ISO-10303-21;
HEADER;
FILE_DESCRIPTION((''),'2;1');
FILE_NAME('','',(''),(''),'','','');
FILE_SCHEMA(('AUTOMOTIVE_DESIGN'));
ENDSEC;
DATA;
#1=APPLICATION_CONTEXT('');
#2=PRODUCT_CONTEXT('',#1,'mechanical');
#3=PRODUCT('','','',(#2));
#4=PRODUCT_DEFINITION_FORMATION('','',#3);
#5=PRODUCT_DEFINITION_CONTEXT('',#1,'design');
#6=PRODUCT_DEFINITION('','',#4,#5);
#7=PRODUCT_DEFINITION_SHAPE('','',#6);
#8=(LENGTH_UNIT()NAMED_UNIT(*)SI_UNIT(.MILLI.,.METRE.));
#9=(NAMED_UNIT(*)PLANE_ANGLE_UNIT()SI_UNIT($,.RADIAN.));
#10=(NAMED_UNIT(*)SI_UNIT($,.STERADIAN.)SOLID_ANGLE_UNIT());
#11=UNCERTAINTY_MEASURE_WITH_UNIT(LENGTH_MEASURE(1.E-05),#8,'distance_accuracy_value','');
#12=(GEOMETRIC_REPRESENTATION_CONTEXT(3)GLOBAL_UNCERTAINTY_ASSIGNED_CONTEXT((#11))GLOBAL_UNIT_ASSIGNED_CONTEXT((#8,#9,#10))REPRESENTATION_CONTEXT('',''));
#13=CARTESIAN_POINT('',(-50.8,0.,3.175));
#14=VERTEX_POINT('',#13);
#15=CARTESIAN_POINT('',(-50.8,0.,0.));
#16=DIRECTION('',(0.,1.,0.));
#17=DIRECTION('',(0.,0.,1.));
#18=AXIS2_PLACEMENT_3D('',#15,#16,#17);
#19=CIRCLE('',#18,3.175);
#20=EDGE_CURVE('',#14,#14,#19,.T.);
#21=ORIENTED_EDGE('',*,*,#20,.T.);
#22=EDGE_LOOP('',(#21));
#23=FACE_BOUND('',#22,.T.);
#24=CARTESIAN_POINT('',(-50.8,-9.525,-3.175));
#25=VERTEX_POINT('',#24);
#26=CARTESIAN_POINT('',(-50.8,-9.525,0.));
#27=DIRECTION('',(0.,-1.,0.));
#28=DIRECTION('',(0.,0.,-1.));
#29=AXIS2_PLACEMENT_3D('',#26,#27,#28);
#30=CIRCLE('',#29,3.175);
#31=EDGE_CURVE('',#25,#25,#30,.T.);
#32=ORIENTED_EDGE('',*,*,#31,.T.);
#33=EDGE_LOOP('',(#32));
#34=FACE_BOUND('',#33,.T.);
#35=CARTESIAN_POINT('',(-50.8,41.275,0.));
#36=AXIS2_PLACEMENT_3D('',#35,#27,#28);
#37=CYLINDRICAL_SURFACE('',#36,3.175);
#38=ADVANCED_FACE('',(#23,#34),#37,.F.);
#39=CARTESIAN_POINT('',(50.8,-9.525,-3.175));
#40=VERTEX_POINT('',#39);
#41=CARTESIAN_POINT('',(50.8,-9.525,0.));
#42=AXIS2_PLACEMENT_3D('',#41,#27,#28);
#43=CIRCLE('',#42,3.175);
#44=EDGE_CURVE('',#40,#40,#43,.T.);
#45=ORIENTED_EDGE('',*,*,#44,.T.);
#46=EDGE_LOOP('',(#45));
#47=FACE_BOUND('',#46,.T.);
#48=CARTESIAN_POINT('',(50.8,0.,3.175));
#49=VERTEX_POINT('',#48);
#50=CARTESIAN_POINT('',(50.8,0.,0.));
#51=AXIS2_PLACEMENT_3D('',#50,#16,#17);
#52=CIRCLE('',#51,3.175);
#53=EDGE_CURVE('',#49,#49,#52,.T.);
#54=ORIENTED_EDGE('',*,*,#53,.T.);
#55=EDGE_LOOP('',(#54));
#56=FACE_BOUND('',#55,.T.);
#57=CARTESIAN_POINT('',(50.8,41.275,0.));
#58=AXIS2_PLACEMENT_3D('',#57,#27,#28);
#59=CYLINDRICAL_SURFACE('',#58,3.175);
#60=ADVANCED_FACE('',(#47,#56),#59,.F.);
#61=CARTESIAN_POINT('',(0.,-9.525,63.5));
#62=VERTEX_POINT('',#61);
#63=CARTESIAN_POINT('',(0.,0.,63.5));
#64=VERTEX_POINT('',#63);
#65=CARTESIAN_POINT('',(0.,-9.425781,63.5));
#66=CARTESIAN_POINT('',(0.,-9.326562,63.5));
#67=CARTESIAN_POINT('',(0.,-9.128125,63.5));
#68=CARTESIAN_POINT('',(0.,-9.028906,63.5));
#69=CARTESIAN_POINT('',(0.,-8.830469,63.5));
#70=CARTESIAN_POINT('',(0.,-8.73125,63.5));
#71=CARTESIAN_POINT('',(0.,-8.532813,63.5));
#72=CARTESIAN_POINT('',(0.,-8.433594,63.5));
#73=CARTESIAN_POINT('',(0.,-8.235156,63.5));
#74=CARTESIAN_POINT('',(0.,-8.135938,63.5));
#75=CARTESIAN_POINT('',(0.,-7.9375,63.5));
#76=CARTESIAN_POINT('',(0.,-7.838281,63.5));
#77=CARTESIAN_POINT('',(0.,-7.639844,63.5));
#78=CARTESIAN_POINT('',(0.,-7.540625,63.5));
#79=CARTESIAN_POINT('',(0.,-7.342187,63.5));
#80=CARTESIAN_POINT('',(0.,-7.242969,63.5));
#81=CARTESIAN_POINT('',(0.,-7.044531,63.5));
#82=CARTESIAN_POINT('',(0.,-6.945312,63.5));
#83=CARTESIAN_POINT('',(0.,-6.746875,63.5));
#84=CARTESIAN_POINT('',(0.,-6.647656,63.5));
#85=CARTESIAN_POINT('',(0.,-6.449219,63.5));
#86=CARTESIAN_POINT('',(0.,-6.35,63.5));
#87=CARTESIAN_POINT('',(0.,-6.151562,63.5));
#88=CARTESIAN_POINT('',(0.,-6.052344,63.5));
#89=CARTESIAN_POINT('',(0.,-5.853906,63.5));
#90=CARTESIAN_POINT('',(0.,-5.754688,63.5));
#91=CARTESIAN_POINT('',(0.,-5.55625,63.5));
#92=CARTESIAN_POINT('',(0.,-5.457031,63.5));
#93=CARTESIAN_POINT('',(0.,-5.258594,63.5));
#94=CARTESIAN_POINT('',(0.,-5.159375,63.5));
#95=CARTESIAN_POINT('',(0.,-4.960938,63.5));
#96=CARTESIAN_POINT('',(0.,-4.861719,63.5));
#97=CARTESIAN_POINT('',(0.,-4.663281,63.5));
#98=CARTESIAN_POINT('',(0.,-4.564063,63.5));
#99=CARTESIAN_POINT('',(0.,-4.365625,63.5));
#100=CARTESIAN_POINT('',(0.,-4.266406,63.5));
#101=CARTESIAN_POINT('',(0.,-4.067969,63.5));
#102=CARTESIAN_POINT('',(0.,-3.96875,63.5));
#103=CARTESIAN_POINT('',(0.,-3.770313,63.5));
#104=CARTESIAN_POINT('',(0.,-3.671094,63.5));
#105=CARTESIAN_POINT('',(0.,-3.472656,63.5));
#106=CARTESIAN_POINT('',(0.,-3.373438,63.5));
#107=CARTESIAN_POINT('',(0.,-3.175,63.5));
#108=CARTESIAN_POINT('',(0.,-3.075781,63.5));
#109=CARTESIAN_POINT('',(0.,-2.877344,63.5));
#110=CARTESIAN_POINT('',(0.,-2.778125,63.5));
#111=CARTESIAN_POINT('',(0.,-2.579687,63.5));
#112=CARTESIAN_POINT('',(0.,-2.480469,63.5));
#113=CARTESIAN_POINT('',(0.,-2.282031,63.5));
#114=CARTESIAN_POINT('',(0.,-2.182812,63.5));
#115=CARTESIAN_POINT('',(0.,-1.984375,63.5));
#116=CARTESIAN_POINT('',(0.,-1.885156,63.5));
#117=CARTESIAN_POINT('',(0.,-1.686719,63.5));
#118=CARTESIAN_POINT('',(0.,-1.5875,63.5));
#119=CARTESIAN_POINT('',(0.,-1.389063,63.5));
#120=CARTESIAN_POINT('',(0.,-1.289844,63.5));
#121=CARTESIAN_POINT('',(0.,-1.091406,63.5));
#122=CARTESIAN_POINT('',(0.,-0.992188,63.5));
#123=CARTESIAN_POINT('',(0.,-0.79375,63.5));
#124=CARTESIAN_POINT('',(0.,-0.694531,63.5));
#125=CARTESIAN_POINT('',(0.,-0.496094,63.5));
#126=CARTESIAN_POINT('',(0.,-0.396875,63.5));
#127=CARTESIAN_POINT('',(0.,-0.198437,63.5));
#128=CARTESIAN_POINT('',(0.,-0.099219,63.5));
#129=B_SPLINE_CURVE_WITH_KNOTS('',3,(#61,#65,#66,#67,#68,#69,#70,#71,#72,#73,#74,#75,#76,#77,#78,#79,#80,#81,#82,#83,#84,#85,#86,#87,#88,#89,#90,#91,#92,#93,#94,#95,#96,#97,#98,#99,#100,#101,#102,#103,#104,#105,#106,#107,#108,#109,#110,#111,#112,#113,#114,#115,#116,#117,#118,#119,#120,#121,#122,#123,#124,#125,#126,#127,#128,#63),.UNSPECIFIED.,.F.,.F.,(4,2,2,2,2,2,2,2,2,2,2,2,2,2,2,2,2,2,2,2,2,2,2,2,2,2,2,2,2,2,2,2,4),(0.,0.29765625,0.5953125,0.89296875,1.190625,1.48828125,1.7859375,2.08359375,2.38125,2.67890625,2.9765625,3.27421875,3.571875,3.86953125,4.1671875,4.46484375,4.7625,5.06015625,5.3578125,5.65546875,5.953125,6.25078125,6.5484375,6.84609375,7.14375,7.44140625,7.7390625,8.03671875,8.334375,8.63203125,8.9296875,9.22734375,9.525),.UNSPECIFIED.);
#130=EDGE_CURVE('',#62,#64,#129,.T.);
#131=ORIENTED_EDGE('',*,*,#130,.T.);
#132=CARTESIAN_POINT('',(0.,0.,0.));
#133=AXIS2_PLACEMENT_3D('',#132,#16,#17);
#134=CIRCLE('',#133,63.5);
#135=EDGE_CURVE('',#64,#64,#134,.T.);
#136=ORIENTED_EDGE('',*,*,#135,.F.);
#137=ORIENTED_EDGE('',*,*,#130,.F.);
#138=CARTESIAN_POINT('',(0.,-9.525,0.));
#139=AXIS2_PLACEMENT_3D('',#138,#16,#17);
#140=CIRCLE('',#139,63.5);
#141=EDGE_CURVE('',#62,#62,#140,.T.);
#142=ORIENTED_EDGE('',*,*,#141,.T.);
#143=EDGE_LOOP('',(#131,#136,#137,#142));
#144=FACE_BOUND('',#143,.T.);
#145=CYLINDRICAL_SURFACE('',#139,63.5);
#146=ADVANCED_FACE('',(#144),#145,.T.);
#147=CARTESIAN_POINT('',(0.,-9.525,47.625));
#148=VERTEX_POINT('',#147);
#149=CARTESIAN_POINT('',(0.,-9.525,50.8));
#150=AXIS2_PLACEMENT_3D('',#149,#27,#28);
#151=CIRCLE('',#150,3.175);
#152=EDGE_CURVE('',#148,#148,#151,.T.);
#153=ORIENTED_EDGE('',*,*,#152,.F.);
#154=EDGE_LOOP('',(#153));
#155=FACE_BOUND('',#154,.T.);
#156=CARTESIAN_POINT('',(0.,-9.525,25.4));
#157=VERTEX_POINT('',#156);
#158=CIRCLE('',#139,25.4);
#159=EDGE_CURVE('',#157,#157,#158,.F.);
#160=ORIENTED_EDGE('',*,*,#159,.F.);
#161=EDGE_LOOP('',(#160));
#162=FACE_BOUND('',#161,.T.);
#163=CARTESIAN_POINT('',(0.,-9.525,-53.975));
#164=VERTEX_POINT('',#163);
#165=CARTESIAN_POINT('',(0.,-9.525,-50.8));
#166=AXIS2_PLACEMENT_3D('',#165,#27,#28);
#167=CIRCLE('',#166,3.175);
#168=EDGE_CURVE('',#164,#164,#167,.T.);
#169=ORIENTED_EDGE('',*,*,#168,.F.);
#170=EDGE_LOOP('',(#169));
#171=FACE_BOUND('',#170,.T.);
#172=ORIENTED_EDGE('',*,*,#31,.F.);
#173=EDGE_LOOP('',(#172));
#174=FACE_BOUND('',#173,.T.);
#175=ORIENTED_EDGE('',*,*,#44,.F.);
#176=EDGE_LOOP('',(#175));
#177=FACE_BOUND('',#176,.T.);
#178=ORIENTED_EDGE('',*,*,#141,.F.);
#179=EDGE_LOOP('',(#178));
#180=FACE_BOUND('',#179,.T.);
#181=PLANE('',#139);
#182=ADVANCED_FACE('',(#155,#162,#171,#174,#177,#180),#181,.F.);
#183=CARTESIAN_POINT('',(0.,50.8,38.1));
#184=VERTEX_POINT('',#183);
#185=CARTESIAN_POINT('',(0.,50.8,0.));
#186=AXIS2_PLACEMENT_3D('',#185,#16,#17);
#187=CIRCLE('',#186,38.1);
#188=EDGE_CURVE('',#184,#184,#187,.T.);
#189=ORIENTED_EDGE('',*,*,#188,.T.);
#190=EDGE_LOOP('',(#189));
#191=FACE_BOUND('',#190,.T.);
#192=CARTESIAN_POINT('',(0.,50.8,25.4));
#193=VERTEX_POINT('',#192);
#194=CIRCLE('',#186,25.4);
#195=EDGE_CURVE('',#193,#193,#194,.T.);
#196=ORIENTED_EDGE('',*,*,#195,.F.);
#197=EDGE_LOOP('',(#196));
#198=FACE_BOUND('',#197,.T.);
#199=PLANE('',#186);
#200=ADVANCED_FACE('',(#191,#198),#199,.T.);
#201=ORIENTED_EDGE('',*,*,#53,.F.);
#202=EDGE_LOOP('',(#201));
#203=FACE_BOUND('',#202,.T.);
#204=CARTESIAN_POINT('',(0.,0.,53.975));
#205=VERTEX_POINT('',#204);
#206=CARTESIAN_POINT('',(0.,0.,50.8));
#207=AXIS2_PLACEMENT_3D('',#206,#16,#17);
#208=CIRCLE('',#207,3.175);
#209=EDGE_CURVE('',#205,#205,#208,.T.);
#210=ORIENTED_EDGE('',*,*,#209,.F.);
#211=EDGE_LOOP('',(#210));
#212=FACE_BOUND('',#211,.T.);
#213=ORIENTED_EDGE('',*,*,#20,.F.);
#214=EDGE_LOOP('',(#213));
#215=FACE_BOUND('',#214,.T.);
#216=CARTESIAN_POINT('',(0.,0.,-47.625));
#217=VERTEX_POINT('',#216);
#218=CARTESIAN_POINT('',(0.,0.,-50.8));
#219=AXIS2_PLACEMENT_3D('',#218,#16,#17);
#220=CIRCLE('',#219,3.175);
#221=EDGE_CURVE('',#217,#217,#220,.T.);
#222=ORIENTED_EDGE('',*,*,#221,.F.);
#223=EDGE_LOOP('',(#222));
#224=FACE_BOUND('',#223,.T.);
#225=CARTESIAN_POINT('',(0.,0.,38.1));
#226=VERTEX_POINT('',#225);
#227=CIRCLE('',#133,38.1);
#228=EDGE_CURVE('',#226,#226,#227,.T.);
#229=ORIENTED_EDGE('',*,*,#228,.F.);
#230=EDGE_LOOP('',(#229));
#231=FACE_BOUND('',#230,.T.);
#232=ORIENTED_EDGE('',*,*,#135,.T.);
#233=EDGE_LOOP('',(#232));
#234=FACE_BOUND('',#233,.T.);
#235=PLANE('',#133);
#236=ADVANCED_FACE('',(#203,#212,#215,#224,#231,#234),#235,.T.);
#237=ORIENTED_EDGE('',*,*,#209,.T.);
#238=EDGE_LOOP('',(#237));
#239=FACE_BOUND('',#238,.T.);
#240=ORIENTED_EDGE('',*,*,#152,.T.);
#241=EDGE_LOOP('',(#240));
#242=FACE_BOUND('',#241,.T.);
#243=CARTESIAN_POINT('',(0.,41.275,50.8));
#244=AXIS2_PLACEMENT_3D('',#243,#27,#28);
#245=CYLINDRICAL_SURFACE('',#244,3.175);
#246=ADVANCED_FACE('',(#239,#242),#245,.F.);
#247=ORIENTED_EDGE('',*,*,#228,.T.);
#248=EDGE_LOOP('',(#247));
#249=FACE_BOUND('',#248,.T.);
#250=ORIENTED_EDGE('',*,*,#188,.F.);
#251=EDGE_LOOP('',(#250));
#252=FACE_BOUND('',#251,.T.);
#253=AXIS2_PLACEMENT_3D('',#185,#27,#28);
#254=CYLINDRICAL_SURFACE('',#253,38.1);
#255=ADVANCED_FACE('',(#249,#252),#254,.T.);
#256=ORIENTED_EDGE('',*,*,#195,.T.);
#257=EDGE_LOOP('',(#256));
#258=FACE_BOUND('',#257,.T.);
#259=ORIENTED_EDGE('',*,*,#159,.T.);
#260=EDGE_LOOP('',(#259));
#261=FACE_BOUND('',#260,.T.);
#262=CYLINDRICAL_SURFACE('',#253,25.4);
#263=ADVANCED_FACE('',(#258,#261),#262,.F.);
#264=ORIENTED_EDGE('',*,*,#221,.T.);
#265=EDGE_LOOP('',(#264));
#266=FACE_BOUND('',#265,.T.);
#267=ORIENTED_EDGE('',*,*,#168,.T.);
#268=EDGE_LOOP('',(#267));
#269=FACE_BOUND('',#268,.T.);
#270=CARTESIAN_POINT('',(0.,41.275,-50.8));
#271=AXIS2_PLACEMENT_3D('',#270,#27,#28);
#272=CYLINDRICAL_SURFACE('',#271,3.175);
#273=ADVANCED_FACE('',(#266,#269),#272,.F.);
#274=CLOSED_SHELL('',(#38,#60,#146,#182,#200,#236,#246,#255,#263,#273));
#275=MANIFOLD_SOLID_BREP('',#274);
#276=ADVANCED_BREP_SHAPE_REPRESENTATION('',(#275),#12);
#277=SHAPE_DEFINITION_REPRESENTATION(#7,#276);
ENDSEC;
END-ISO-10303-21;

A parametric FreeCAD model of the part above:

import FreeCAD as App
import Part
import Sketcher

V = App.Vector
Q = App.Units.Quantity

doc = App.newDocument("Part")
params = doc.addObject("Spreadsheet::Sheet", "Params")
for row, (alias, value) in enumerate([
    ("sketch1_diameter", "5 in"),
    ("pad1_length", "0.375 in"),
    ("sketch2_diameter", "3 in"),
    ("pad2_length", "2 in"),
    ("sketch3_diameter", "2 in"),
    ("sketch4_diameter", "0.25 in"),
    ("pocket2_length", "2 in"),
], start=1):
    params.set(f"A{row}", alias)
    params.set(f"B{row}", "=" + value)
    params.setAlias(f"B{row}", alias)

body = doc.addObject("PartDesign::Body", "Body")

# Sketch on XZ plane
sketch1 = body.newObject("Sketcher::SketchObject", "Sketch")
sketch1.AttachmentSupport = (doc.getObject("XZ_Plane"), [""])
sketch1.MapMode = "FlatFace"
sketch1.addGeometry(Part.Circle(V(0, 0, 0), V(0, 0, 1), 64), False)
sketch1.addConstraint([
    Sketcher.Constraint("Coincident", 0, 3, -1, 1),
    Sketcher.Constraint("Diameter", 0, Q("5 in")),
])
sketch1.setExpression("Constraints[1]", "Params.sketch1_diameter")
pad1 = body.newObject("PartDesign::Pad", "Pad")
pad1.Profile = sketch1
pad1.setExpression("Length", "Params.pad1_length")

# Sketch on XZ plane
sketch2 = body.newObject("Sketcher::SketchObject", "Sketch001")
sketch2.AttachmentSupport = (doc.getObject("XZ_Plane"), [""])
sketch2.MapMode = "FlatFace"
sketch2.addGeometry(Part.Circle(V(0, 0, 0), V(0, 0, 1), 38), False)
sketch2.addConstraint([
    Sketcher.Constraint("Coincident", 0, 3, -1, 1),
    Sketcher.Constraint("Diameter", 0, Q("3 in")),
])
sketch2.setExpression("Constraints[1]", "Params.sketch2_diameter")
pad2 = body.newObject("PartDesign::Pad", "Pad001")
pad2.Profile = sketch2
pad2.setExpression("Length", "Params.pad2_length")
pad2.Reversed = True

# Sketch on XZ plane
sketch3 = body.newObject("Sketcher::SketchObject", "Sketch002")
sketch3.AttachmentSupport = (doc.getObject("XZ_Plane"), [""])
sketch3.MapMode = "FlatFace"
sketch3.addGeometry(Part.Circle(V(0, 0, 0), V(0, 0, 1), 25), False)
sketch3.addConstraint([
    Sketcher.Constraint("Coincident", 0, 3, -1, 1),
    Sketcher.Constraint("Diameter", 0, Q("2 in")),
])
sketch3.setExpression("Constraints[1]", "Params.sketch3_diameter")
pocket1 = body.newObject("PartDesign::Pocket", "Pocket")
pocket1.Profile = sketch3
pocket1.Type = "ThroughAll"
pocket1.Midplane = True

# Sketch on XZ plane
sketch4 = body.newObject("Sketcher::SketchObject", "Sketch003")
sketch4.AttachmentSupport = (doc.getObject("XZ_Plane"), [""])
sketch4.MapMode = "FlatFace"
sketch4.AttachmentOffset = App.Placement(V(0, 0, 0.375 * 25.4), App.Rotation())
sketch4.addGeometry([
    Part.Circle(V(0, 50.8, 0), V(0, 0, 1), 3.2),
    Part.Circle(V(50.8, 0, 0), V(0, 0, 1), 3.2),
    Part.Circle(V(0, -50.8, 0), V(0, 0, 1), 3.2),
    Part.Circle(V(-50.8, 0, 0), V(0, 0, 1), 3.2),
], False)
sketch4.addConstraint([
    Sketcher.Constraint("Equal", 0, 1),
    Sketcher.Constraint("Equal", 1, 2),
    Sketcher.Constraint("Equal", 2, 3),
    Sketcher.Constraint("Symmetric", 0, 3, 2, 3, -1, 1),
    Sketcher.Constraint("Symmetric", 1, 3, 3, 3, -1, 1),
    Sketcher.Constraint("PointOnObject", 0, 3, -2),
    Sketcher.Constraint("PointOnObject", 1, 3, -1),
    Sketcher.Constraint("Diameter", 0, Q("0.25 in")),
    Sketcher.Constraint("DistanceY", -1, 1, 0, 3, Q("2 in")),
    Sketcher.Constraint("DistanceX", -1, 1, 1, 3, Q("2 in")),
])
sketch4.setExpression("Constraints[7]", "Params.sketch4_diameter")
pocket2 = body.newObject("PartDesign::Pocket", "Pocket001")
pocket2.Profile = sketch4
pocket2.setExpression("Length", "Params.pocket2_length")

doc.recompute()
